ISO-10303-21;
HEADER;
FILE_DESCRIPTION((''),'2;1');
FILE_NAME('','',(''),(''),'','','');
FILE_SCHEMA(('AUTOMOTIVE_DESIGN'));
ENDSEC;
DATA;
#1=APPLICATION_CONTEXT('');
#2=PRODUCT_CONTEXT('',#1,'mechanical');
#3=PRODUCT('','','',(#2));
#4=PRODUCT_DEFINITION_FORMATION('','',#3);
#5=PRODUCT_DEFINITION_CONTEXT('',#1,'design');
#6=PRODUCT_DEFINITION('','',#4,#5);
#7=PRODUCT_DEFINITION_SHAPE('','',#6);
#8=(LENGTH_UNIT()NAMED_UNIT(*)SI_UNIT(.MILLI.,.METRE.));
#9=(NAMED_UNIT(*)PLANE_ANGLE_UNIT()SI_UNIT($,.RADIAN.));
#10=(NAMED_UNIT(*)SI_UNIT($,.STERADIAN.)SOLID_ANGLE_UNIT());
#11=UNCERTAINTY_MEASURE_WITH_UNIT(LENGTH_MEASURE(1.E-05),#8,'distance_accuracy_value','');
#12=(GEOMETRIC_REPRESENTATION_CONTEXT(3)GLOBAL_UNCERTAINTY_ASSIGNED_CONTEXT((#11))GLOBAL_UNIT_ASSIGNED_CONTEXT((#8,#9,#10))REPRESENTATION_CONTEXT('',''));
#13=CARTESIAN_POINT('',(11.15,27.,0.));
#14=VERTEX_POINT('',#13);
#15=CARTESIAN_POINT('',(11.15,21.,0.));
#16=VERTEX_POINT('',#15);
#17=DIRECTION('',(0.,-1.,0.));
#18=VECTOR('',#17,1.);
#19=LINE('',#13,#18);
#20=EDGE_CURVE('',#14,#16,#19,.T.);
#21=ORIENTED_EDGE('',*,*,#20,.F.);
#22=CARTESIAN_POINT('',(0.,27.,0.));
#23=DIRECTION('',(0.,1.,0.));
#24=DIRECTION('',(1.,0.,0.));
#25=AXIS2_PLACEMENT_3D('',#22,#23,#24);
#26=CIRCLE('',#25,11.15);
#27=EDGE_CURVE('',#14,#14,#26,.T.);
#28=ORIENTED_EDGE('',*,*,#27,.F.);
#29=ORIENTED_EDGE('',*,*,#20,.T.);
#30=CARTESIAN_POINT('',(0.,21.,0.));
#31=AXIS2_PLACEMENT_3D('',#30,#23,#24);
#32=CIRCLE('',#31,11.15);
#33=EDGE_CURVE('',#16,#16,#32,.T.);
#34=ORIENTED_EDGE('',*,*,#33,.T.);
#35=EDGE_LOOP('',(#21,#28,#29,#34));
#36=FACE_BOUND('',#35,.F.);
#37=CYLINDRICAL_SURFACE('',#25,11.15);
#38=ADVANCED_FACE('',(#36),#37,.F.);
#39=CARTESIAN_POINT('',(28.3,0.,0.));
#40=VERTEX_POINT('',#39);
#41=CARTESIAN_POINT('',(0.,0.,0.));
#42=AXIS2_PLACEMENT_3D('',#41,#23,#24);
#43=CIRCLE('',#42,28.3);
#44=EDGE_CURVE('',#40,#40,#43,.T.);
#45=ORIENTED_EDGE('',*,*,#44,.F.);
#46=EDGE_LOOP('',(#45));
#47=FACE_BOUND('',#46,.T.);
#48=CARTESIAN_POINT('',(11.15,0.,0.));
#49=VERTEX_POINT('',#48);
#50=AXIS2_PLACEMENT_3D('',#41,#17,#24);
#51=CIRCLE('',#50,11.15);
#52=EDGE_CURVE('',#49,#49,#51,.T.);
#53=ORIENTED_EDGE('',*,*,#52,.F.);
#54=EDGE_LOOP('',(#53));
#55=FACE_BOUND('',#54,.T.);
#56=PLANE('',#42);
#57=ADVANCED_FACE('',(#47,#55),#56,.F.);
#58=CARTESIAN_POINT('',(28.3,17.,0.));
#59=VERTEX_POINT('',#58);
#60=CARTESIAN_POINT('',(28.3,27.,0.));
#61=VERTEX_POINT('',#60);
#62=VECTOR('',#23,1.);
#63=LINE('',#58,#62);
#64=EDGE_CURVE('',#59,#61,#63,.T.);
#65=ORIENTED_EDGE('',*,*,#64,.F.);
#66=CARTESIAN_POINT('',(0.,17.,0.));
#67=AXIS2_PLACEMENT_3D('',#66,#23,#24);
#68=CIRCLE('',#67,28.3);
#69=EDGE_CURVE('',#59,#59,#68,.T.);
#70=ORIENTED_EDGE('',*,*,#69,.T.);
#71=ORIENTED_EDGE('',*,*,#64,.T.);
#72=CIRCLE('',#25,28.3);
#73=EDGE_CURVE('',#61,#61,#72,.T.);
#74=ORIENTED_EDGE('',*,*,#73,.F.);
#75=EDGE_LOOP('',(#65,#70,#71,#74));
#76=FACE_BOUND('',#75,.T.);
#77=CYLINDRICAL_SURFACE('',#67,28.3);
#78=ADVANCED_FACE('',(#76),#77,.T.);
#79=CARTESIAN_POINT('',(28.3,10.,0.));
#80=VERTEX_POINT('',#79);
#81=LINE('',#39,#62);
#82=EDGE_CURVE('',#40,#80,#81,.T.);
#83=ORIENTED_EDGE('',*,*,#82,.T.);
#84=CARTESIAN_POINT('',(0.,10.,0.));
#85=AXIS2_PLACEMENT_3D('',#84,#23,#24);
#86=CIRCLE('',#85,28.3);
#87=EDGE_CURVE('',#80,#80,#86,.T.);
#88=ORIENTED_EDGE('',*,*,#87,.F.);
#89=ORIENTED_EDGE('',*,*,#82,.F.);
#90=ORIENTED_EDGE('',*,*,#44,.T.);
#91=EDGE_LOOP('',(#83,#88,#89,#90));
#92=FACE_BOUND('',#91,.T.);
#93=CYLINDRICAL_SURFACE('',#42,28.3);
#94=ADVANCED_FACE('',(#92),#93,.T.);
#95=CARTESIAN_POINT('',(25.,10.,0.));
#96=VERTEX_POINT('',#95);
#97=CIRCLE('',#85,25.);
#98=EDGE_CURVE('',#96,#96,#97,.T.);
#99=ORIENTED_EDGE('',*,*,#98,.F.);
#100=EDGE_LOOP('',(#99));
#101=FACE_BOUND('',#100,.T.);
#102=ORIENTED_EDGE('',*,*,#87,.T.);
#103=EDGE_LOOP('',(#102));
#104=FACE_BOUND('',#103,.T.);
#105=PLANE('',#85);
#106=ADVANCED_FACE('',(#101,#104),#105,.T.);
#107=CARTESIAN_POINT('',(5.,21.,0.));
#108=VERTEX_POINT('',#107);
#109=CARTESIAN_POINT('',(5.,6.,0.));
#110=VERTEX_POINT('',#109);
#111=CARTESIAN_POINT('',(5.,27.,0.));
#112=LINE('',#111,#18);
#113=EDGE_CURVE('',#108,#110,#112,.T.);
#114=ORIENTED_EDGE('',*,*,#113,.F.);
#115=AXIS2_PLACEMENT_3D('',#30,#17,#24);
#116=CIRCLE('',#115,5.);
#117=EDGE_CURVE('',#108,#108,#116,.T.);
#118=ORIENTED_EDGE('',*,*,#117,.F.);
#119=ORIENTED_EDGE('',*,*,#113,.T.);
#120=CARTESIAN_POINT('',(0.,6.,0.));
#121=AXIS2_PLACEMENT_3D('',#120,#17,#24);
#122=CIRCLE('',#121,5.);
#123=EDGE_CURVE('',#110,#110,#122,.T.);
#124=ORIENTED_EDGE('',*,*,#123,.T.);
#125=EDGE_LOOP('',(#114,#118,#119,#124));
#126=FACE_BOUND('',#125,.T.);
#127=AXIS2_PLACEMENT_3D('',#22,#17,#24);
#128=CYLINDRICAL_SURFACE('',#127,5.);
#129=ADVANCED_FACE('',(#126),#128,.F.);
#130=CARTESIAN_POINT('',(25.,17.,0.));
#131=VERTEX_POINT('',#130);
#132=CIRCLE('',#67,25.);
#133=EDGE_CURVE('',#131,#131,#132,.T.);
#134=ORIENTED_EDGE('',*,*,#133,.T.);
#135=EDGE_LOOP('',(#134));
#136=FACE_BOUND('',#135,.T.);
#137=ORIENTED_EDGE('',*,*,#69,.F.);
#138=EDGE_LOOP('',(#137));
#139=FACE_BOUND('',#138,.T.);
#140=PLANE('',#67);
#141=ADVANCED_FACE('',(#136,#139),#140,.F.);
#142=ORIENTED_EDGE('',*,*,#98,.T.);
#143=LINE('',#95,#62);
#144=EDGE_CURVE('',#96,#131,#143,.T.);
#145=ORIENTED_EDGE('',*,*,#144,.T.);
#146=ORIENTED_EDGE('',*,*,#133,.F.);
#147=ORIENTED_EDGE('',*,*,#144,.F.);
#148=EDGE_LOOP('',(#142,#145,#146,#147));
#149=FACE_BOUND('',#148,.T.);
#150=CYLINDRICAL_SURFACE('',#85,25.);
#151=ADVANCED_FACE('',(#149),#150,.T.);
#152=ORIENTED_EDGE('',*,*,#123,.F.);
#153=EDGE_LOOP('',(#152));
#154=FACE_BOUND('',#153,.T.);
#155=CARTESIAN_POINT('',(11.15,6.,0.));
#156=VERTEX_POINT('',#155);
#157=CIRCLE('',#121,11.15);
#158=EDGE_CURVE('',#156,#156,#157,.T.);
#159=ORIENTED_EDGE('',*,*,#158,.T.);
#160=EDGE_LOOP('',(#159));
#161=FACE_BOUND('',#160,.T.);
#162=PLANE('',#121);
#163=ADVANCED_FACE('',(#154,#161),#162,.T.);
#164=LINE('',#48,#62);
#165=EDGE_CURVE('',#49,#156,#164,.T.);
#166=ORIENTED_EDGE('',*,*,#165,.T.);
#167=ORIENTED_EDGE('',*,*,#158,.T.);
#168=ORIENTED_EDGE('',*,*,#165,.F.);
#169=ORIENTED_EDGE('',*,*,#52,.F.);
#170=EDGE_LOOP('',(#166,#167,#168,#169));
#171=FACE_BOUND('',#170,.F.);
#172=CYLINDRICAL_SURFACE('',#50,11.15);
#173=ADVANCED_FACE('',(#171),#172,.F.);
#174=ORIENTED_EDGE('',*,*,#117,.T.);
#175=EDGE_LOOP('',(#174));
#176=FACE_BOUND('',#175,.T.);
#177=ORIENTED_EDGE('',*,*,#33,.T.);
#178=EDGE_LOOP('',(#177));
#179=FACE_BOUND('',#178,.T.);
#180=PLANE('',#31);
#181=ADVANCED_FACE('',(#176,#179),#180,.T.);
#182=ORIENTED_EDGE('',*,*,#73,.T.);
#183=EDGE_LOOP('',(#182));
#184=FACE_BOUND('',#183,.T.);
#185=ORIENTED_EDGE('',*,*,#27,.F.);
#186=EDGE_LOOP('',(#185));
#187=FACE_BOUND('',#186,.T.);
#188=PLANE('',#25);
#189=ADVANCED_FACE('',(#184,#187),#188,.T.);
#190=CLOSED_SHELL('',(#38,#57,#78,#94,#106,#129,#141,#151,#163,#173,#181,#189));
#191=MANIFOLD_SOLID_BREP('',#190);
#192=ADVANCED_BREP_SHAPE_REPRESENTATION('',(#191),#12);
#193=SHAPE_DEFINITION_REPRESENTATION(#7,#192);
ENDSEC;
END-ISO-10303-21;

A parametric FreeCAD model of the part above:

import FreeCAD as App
import Part
import Sketcher
from FreeCAD import Vector


def add_polygon(sketch, points):
    """Adds a closed chain of lines whose ends are joined by coincident constraints."""
    first, n = sketch.GeometryCount, len(points)
    for a, b in zip(points, points[1:] + points[:1]):
        sketch.addGeometry(Part.LineSegment(App.Vector(*a, 0), App.Vector(*b, 0)), False)
    for i in range(n):
        sketch.addConstraint(Sketcher.Constraint("Coincident", first + i, 2, first + (i + 1) % n, 1))

doc = App.newDocument("Part")
body = doc.addObject("PartDesign::Body", "Body")

# Sketch on XY plane
sketch1 = body.newObject("Sketcher::SketchObject", "Sketch")
sketch1.AttachmentSupport = (doc.getObject("XY_Plane"), [""])
sketch1.MapMode = "FlatFace"
add_polygon(sketch1, [(5, 27), (5, 0), (28.3, 0), (28.3, 10), (25, 10), (25, 17), (28.3, 17), (28.3, 27)])  # lines 0-7
sketch1.addConstraint([
    Sketcher.Constraint("Vertical", 0),
    Sketcher.Constraint("Horizontal", 1),
    Sketcher.Constraint("Vertical", 2),
    Sketcher.Constraint("Horizontal", 3),
    Sketcher.Constraint("Vertical", 4),
    Sketcher.Constraint("Horizontal", 5),
    Sketcher.Constraint("Vertical", 6),
    Sketcher.Constraint("Horizontal", 7),
    Sketcher.Constraint("PointOnObject", 0, 2, -1),
    Sketcher.Constraint("Vertical", 2, 2, 5, 2),
    Sketcher.Constraint("Equal", 2, 6),
    Sketcher.Constraint("DistanceY", 2, 1, 2, 2, 10.0),
    Sketcher.Constraint("DistanceY", 4, 1, 4, 2, 7.0),
    Sketcher.Constraint("DistanceX", 3, 2, 3, 1, 3.3),
    Sketcher.Constraint("DistanceX", -1, 1, 0, 2, 5.0),
    Sketcher.Constraint("DistanceX", -1, 1, 3, 2, 25.0),
])
revolution = body.newObject("PartDesign::Revolution", "Revolution")
revolution.Profile = sketch1
revolution.ReferenceAxis = (sketch1, ["V_Axis"])
revolution.Angle = 360

# Sketch on XZ plane
sketch2 = body.newObject("Sketcher::SketchObject", "Sketch001")
sketch2.AttachmentSupport = (doc.getObject("XZ_Plane"), [""])
sketch2.MapMode = "FlatFace"
sketch2.AttachmentOffset = App.Placement(Vector(0, 0, -27), App.Rotation())
sketch2.addGeometry(Part.Circle(Vector(0, 0, 0), Vector(0, 0, 1), 11), False)
sketch2.addConstraint([
    Sketcher.Constraint("Coincident", 0, 3, -1, 1),
    Sketcher.Constraint("Diameter", 0, 22.3),
])
pocket1 = body.newObject("PartDesign::Pocket", "Pocket")
pocket1.Profile = sketch2
pocket1.Length = 6
pocket1.Reversed = True

# Sketch on XZ plane
sketch3 = body.newObject("Sketcher::SketchObject", "Sketch002")
sketch3.AttachmentSupport = (doc.getObject("XZ_Plane"), [""])
sketch3.MapMode = "FlatFace"
sketch3.addGeometry(Part.Circle(Vector(0, 0, 0), Vector(0, 0, 1), 11), False)
sketch3.addConstraint([
    Sketcher.Constraint("Coincident", 0, 3, -1, 1),
    Sketcher.Constraint("Diameter", 0, 22.3),
])
pocket2 = body.newObject("PartDesign::Pocket", "Pocket001")
pocket2.Profile = sketch3
pocket2.Length = 6

doc.recompute()
